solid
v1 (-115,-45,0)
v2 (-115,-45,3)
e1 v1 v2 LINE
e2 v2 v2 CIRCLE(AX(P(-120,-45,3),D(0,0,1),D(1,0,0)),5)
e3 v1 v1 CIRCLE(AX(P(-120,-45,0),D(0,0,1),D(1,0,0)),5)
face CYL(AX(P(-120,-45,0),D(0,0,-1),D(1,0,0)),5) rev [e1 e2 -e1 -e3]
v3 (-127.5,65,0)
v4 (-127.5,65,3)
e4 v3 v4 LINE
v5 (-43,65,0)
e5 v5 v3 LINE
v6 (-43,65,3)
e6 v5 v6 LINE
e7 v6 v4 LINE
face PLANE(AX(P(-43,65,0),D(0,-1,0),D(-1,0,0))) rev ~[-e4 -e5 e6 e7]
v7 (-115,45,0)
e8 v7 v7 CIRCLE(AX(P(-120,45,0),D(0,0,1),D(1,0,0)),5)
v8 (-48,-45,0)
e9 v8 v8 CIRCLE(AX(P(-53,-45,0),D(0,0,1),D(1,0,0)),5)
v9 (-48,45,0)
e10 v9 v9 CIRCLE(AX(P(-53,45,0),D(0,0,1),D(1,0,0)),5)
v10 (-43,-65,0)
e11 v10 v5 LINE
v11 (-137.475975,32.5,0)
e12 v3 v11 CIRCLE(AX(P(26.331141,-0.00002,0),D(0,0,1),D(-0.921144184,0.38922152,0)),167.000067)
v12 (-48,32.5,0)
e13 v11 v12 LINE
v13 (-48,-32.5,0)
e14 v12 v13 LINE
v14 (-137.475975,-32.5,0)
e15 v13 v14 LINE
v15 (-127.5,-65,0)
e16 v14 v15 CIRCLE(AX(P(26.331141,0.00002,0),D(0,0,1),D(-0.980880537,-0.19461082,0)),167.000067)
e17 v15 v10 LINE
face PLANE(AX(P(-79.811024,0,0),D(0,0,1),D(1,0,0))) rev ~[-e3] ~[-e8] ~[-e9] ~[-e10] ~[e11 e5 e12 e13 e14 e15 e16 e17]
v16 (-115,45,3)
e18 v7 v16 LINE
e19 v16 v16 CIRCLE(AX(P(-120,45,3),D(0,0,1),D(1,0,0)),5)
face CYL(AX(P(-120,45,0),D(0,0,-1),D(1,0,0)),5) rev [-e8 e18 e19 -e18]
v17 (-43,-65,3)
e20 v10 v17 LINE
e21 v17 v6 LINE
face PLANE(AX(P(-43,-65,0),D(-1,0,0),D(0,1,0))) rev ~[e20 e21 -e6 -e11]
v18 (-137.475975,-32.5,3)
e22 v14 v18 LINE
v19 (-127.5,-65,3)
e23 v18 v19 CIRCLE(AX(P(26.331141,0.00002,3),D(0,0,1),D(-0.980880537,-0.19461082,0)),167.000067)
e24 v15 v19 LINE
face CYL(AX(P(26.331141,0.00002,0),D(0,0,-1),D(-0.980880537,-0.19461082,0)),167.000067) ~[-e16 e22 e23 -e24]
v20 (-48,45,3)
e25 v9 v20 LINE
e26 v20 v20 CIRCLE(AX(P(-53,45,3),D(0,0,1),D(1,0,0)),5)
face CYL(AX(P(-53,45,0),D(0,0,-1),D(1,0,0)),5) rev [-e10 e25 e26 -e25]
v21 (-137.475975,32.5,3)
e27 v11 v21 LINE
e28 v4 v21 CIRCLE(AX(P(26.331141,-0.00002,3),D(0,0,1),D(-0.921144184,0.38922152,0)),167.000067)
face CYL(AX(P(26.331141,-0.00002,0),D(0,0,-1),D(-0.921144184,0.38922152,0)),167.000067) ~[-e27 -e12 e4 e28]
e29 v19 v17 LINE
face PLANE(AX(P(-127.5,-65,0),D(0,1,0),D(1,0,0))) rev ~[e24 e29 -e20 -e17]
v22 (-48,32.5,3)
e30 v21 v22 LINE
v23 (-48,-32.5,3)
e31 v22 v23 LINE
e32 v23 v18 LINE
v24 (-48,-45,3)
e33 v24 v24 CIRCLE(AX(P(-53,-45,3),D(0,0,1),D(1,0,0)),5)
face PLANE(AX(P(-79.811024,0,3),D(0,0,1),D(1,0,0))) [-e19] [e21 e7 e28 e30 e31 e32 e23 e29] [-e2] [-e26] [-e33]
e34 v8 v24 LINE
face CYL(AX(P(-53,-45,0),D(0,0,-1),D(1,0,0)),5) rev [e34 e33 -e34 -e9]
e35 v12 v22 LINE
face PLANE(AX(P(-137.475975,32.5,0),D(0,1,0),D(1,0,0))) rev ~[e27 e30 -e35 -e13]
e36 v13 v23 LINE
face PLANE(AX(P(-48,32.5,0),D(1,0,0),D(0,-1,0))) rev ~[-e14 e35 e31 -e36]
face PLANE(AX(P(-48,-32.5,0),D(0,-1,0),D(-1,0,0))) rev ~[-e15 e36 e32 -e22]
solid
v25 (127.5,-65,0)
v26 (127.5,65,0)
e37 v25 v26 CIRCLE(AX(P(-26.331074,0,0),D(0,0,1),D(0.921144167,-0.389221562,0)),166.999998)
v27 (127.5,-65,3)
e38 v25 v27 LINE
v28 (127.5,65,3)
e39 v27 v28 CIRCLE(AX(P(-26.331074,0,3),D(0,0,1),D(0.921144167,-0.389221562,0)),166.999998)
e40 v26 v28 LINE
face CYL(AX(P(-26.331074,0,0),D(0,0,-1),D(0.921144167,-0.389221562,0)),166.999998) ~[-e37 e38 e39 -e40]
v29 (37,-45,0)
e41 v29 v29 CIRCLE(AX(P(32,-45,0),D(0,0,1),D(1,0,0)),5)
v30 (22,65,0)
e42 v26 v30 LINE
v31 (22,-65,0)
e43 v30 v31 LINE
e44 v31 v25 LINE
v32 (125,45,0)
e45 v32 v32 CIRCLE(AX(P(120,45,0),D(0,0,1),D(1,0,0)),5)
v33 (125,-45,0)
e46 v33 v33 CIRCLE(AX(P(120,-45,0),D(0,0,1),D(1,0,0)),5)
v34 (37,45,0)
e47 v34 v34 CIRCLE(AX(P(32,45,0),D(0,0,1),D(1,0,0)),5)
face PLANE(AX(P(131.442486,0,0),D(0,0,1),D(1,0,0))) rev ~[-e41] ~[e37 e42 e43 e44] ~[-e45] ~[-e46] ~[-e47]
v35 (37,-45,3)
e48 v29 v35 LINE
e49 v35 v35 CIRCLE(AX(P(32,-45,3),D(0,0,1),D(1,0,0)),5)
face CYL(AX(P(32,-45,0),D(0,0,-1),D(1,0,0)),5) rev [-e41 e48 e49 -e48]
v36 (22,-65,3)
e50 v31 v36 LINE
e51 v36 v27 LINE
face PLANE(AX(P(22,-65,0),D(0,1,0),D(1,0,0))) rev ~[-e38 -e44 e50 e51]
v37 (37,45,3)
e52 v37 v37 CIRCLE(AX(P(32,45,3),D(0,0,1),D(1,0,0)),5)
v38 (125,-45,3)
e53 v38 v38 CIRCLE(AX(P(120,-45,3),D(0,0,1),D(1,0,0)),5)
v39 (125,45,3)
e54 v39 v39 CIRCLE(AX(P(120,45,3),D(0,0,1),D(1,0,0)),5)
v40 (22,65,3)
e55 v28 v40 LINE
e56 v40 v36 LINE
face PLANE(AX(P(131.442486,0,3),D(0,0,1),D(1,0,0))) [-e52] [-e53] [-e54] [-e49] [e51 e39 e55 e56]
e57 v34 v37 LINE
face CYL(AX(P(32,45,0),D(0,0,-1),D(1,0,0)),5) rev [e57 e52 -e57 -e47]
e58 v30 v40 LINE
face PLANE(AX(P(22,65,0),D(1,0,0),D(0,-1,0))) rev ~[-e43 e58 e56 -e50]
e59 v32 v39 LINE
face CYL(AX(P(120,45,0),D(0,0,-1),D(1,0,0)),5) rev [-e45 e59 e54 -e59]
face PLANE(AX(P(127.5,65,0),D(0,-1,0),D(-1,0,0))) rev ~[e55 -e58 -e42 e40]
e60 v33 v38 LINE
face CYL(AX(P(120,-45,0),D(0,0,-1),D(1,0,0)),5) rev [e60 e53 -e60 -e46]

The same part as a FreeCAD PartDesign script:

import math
import FreeCAD as App
import Part
import Sketcher

V = App.Vector
Q = App.Units.Quantity

doc = App.newDocument("Part")
body = doc.addObject("PartDesign::Body", "Body")
body.AllowCompound = True

sketch1 = body.newObject("Sketcher::SketchObject", "Sketch")
sketch1.AttachmentSupport = (doc.getObject("XY_Plane"), [""])
sketch1.MapMode = "FlatFace"
sketch1.addGeometry([
    Part.ArcOfCircle(Part.Circle(V(-26, 0, 0), V(0, 0, 1), 167), math.radians(-23), math.radians(23)),
    Part.LineSegment(V(128, 65, 0), V(22, 65, 0)),
    Part.LineSegment(V(22, 65, 0), V(22, -65, 0)),
    Part.LineSegment(V(22, -65, 0), V(128, -65, 0)),
    Part.Circle(V(32, -45, 0), V(0, 0, 1), 5),
    Part.Circle(V(120, -45, 0), V(0, 0, 1), 5),
    Part.Circle(V(32, 45, 0), V(0, 0, 1), 5),
    Part.Circle(V(120, 45, 0), V(0, 0, 1), 5),
    Part.LineSegment(V(-128, -65, 0), V(-43, -65, 0)),
    Part.LineSegment(V(-43, -65, 0), V(-43, 65, 0)),
    Part.LineSegment(V(-43, 65, 0), V(-128, 65, 0)),
    Part.ArcOfCircle(Part.Circle(V(26, 0, 0), V(0, 0, 1), 167), math.radians(157.09), math.radians(168.78)),
    Part.LineSegment(V(-137, 32, 0), V(-48, 32, 0)),
    Part.LineSegment(V(-48, 32, 0), V(-48, -32, 0)),
    Part.LineSegment(V(-48, -32, 0), V(-137, -32, 0)),
    Part.ArcOfCircle(Part.Circle(V(26, 0, 0), V(0, 0, 1), 167), math.radians(-168.78), math.radians(-157.09)),
    Part.Circle(V(-120, -45, 0), V(0, 0, 1), 5),
    Part.Circle(V(-53, -45, 0), V(0, 0, 1), 5),
    Part.Circle(V(-120, 45, 0), V(0, 0, 1), 5),
    Part.Circle(V(-53, 45, 0), V(0, 0, 1), 5),
], False)
sketch1.addConstraint([
    Sketcher.Constraint("Coincident", 0, 2, 1, 1),
    Sketcher.Constraint("Coincident", 1, 2, 2, 1),
    Sketcher.Constraint("Coincident", 2, 2, 3, 1),
    Sketcher.Constraint("Coincident", 3, 2, 0, 1),
    Sketcher.Constraint("Coincident", 8, 2, 9, 1),
    Sketcher.Constraint("Coincident", 9, 2, 10, 1),
    Sketcher.Constraint("Coincident", 10, 2, 11, 1),
    Sketcher.Constraint("Coincident", 11, 2, 12, 1),
    Sketcher.Constraint("Coincident", 12, 2, 13, 1),
    Sketcher.Constraint("Coincident", 13, 2, 14, 1),
    Sketcher.Constraint("Coincident", 14, 2, 15, 1),
    Sketcher.Constraint("Coincident", 15, 2, 8, 1),
    Sketcher.Constraint("Horizontal", 1),
    Sketcher.Constraint("Vertical", 2),
    Sketcher.Constraint("Horizontal", 3),
    Sketcher.Constraint("Horizontal", 8),
    Sketcher.Constraint("Vertical", 9),
    Sketcher.Constraint("Horizontal", 10),
    Sketcher.Constraint("Horizontal", 12),
    Sketcher.Constraint("Vertical", 13),
    Sketcher.Constraint("Horizontal", 14),
    Sketcher.Constraint("Equal", 4, 5),
    Sketcher.Constraint("Equal", 5, 6),
    Sketcher.Constraint("Equal", 6, 7),
    Sketcher.Constraint("Equal", 11, 15),
    Sketcher.Constraint("Equal", 7, 16),
    Sketcher.Constraint("Equal", 16, 17),
    Sketcher.Constraint("Equal", 17, 18),
    Sketcher.Constraint("Equal", 18, 19),
    Sketcher.Constraint("Symmetric", 7, 3, 16, 3, -1, 1),
    Sketcher.Constraint("Symmetric", 5, 3, 18, 3, -1, 1),
    Sketcher.Constraint("Symmetric", 3, 2, 10, 2, -1, 1),
    Sketcher.Constraint("Symmetric", 0, 2, 15, 2, -1, 1),
    Sketcher.Constraint("Symmetric", 5, 3, 16, 3, -2),
    Sketcher.Constraint("Symmetric", 0, 2, 10, 2, -2),
    Sketcher.Constraint("Symmetric", 4, 3, 6, 3, -1),
    Sketcher.Constraint("Symmetric", 17, 3, 19, 3, -1),
    Sketcher.Constraint("Symmetric", 11, 2, 14, 2, -1),
    Sketcher.Constraint("Horizontal", 4, 3, 5, 3),
    Sketcher.Constraint("Horizontal", 16, 3, 17, 3),
    Sketcher.Constraint("Diameter", 4, Q("10 mm")),
    Sketcher.Constraint("DistanceY", 2, 2, 2, 1, Q("130 mm")),
    Sketcher.Constraint("DistanceY", 13, 2, 13, 1, Q("65 mm")),
    Sketcher.Constraint("DistanceX", 1, 2, 1, 1, Q("105.5 mm")),
    Sketcher.Constraint("DistanceX", 8, 1, 8, 2, Q("84.5 mm")),
    Sketcher.Constraint("DistanceX", -1, 1, 4, 3, Q("32 mm")),
    Sketcher.Constraint("DistanceY", 4, 3, -1, 1, Q("45 mm")),
    Sketcher.Constraint("DistanceX", -1, 1, 5, 3, Q("120 mm")),
    Sketcher.Constraint("DistanceX", 17, 3, -1, 1, Q("53 mm")),
    Sketcher.Constraint("DistanceX", -1, 1, 1, 2, Q("22 mm")),
    Sketcher.Constraint("DistanceX", 12, 2, -1, 1, Q("48 mm")),
    Sketcher.Constraint("Radius", 0, Q("166.999998 mm")),
    Sketcher.Constraint("Radius", 11, Q("167.000067 mm")),
    Sketcher.Constraint("DistanceX", 12, 1, 12, 2, Q("89.475975 mm")),
])
pad1 = body.newObject("PartDesign::Pad", "Pad")
pad1.Profile = sketch1
pad1.Length = 3

doc.recompute()
